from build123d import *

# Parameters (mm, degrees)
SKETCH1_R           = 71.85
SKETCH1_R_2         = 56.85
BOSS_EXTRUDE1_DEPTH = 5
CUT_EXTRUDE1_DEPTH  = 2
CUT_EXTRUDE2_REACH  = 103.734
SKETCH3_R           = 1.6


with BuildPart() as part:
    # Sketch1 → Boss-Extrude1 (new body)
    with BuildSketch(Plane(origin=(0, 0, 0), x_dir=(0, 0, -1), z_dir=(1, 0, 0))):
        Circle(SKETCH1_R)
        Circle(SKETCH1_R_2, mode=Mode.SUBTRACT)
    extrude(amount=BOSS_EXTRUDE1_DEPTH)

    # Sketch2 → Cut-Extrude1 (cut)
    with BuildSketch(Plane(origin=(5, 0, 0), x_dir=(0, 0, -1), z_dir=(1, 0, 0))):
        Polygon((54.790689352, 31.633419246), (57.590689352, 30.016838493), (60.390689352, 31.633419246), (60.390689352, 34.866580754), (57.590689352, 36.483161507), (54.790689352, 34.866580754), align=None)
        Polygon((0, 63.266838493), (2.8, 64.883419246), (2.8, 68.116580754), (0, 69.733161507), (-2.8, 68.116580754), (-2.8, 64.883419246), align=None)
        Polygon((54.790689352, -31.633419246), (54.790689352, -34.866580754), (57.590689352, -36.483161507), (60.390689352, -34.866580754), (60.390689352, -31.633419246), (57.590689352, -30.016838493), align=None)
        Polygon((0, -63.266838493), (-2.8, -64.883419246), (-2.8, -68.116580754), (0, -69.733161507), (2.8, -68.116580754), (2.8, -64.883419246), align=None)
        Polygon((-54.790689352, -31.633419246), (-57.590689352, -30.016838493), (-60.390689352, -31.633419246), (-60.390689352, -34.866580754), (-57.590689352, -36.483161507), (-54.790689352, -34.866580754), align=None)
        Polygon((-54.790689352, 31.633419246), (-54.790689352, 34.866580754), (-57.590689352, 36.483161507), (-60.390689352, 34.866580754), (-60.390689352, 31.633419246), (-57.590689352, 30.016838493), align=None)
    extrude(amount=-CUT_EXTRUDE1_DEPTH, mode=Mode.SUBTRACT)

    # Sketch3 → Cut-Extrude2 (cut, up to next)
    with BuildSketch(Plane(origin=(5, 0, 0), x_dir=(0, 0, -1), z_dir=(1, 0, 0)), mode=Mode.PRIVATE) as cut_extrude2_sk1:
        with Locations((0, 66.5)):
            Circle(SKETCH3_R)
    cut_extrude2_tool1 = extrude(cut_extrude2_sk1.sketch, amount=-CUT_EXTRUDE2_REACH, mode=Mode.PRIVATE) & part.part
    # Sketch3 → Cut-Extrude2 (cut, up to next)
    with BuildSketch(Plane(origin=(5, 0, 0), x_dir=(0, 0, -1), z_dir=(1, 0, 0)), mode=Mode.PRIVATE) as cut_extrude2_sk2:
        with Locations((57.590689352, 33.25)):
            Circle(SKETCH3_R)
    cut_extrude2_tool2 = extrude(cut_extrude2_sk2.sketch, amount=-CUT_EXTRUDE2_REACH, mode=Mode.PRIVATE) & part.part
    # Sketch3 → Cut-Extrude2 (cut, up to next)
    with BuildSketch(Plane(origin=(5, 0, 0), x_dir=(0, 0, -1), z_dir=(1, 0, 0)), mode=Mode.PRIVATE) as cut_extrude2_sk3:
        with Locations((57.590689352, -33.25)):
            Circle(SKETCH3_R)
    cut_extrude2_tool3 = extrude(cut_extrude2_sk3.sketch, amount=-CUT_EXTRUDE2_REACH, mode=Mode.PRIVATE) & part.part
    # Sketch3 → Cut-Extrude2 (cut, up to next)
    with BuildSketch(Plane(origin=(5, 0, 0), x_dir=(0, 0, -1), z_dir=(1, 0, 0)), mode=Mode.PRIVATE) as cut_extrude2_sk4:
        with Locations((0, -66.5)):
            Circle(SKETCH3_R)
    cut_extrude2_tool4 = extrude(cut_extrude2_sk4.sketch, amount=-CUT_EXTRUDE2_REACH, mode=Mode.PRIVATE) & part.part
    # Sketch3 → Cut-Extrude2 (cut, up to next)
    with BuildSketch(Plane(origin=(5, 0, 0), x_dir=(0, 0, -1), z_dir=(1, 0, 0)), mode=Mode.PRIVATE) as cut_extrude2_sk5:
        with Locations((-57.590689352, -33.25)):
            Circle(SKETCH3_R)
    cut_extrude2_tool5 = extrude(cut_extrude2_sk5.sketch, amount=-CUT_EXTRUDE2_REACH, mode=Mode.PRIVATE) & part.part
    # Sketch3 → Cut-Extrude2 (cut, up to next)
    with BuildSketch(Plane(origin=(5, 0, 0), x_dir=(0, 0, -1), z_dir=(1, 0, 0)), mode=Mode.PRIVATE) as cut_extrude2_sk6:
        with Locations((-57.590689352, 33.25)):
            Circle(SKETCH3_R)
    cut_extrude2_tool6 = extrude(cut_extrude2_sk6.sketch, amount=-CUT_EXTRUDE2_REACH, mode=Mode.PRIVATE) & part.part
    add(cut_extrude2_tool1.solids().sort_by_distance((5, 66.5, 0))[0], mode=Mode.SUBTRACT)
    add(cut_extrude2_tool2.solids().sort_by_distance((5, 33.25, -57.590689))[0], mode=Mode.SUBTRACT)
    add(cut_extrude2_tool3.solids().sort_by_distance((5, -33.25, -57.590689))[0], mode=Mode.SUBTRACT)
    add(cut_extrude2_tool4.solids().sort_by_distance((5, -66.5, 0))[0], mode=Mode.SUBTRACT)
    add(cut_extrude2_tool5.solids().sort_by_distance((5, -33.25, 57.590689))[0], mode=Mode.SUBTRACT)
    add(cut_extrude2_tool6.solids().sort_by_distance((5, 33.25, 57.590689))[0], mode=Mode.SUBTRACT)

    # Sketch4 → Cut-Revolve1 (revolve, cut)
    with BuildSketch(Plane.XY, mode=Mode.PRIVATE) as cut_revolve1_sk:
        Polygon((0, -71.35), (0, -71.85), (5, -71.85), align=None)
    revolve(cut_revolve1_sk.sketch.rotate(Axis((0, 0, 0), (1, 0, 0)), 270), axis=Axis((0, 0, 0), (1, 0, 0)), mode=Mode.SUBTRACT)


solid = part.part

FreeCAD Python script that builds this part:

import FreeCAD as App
import Part
import Sketcher

V = App.Vector
Q = App.Units.Quantity

doc = App.newDocument("Part")
params = doc.addObject("Spreadsheet::Sheet", "Params")
for row, (alias, value) in enumerate([
    ("sketch1_diameter", "143.7 mm"),
    ("sketch1_diameter2", "113.7 mm"),
    ("pad1_length", "5 mm"),
    ("pocket1_length", "2 mm"),
    ("sketch3_diameter", "3.2 mm"),
    ("pocket2_length", "5 mm"),
    ("sketch4_diameter", "3.2 mm"),
    ("pocket3_length", "5 mm"),
    ("sketch5_diameter", "3.2 mm"),
    ("pocket4_length", "5 mm"),
    ("sketch6_diameter", "3.2 mm"),
    ("pocket5_length", "5 mm"),
    ("sketch7_diameter", "3.2 mm"),
    ("pocket6_length", "5 mm"),
    ("sketch8_diameter", "3.2 mm"),
    ("pocket7_length", "5 mm"),
    ("sketch9_width", "5 mm"),
    ("sketch9_height", "0.5 mm"),
    ("groove_angle", "360 deg"),
], start=1):
    params.set(f"A{row}", alias)
    params.set(f"B{row}", "=" + value)
    params.setAlias(f"B{row}", alias)

body = doc.addObject("PartDesign::Body", "Body")

# Sketch on YZ plane
sketch1 = body.newObject("Sketcher::SketchObject", "Sketch")
sketch1.AttachmentSupport = (doc.getObject("YZ_Plane"), [""])
sketch1.MapMode = "FlatFace"
sketch1.addGeometry([
    Part.Circle(V(0, 0, 0), V(0, 0, 1), 72),
    Part.Circle(V(0, 0, 0), V(0, 0, 1), 57),
], False)
sketch1.addConstraint([
    Sketcher.Constraint("Coincident", 0, 3, -1, 1),
    Sketcher.Constraint("Coincident", 1, 3, -1, 1),
    Sketcher.Constraint("Diameter", 0, 143.7),
    Sketcher.Constraint("Diameter", 1, 113.7),
])
sketch1.setExpression("Constraints[2]", "Params.sketch1_diameter")
sketch1.setExpression("Constraints[3]", "Params.sketch1_diameter2")
pad1 = body.newObject("PartDesign::Pad", "Pad")
pad1.Profile = sketch1
pad1.setExpression("Length", "Params.pad1_length")

# Sketch on YZ plane
sketch2 = body.newObject("Sketcher::SketchObject", "Sketch001")
sketch2.AttachmentSupport = (doc.getObject("YZ_Plane"), [""])
sketch2.MapMode = "FlatFace"
sketch2.AttachmentOffset = App.Placement(V(0, 0, 5), App.Rotation())
sketch2.addGeometry([
    Part.LineSegment(V(31.6, -54.8, 0), V(30, -57.6, 0)),  # 0
    Part.LineSegment(V(30, -57.6, 0), V(31.6, -60.4, 0)),  # 1
    Part.LineSegment(V(31.6, -60.4, 0), V(34.9, -60.4, 0)),  # 2
    Part.LineSegment(V(34.9, -60.4, 0), V(36.5, -57.6, 0)),  # 3
    Part.LineSegment(V(36.5, -57.6, 0), V(34.9, -54.8, 0)),  # 4
    Part.LineSegment(V(34.9, -54.8, 0), V(31.6, -54.8, 0)),  # 5
    Part.LineSegment(V(63.3, 0, 0), V(64.9, -2.8, 0)),  # 6
    Part.LineSegment(V(64.9, -2.8, 0), V(68.1, -2.8, 0)),  # 7
    Part.LineSegment(V(68.1, -2.8, 0), V(69.7, 0, 0)),  # 8
    Part.LineSegment(V(69.7, 0, 0), V(68.1, 2.8, 0)),  # 9
    Part.LineSegment(V(68.1, 2.8, 0), V(64.9, 2.8, 0)),  # 10
    Part.LineSegment(V(64.9, 2.8, 0), V(63.3, 0, 0)),  # 11
    Part.LineSegment(V(-31.6, -54.8, 0), V(-34.9, -54.8, 0)),  # 12
    Part.LineSegment(V(-34.9, -54.8, 0), V(-36.5, -57.6, 0)),  # 13
    Part.LineSegment(V(-36.5, -57.6, 0), V(-34.9, -60.4, 0)),  # 14
    Part.LineSegment(V(-34.9, -60.4, 0), V(-31.6, -60.4, 0)),  # 15
    Part.LineSegment(V(-31.6, -60.4, 0), V(-30, -57.6, 0)),  # 16
    Part.LineSegment(V(-30, -57.6, 0), V(-31.6, -54.8, 0)),  # 17
    Part.LineSegment(V(-63.3, 0, 0), V(-64.9, 2.8, 0)),  # 18
    Part.LineSegment(V(-64.9, 2.8, 0), V(-68.1, 2.8, 0)),  # 19
    Part.LineSegment(V(-68.1, 2.8, 0), V(-69.7, 0, 0)),  # 20
    Part.LineSegment(V(-69.7, 0, 0), V(-68.1, -2.8, 0)),  # 21
    Part.LineSegment(V(-68.1, -2.8, 0), V(-64.9, -2.8, 0)),  # 22
    Part.LineSegment(V(-64.9, -2.8, 0), V(-63.3, 0, 0)),  # 23
    Part.LineSegment(V(-31.6, 54.8, 0), V(-30, 57.6, 0)),  # 24
    Part.LineSegment(V(-30, 57.6, 0), V(-31.6, 60.4, 0)),  # 25
    Part.LineSegment(V(-31.6, 60.4, 0), V(-34.9, 60.4, 0)),  # 26
    Part.LineSegment(V(-34.9, 60.4, 0), V(-36.5, 57.6, 0)),  # 27
    Part.LineSegment(V(-36.5, 57.6, 0), V(-34.9, 54.8, 0)),  # 28
    Part.LineSegment(V(-34.9, 54.8, 0), V(-31.6, 54.8, 0)),  # 29
    Part.LineSegment(V(31.6, 54.8, 0), V(34.9, 54.8, 0)),  # 30
    Part.LineSegment(V(34.9, 54.8, 0), V(36.5, 57.6, 0)),  # 31
    Part.LineSegment(V(36.5, 57.6, 0), V(34.9, 60.4, 0)),  # 32
    Part.LineSegment(V(34.9, 60.4, 0), V(31.6, 60.4, 0)),  # 33
    Part.LineSegment(V(31.6, 60.4, 0), V(30, 57.6, 0)),  # 34
    Part.LineSegment(V(30, 57.6, 0), V(31.6, 54.8, 0)),  # 35
], False)
sketch2.addConstraint([
    Sketcher.Constraint("Coincident", 0, 2, 1, 1),
    Sketcher.Constraint("Coincident", 1, 2, 2, 1),
    Sketcher.Constraint("Coincident", 2, 2, 3, 1),
    Sketcher.Constraint("Coincident", 3, 2, 4, 1),
    Sketcher.Constraint("Coincident", 4, 2, 5, 1),
    Sketcher.Constraint("Coincident", 5, 2, 0, 1),
    Sketcher.Constraint("Coincident", 6, 2, 7, 1),
    Sketcher.Constraint("Coincident", 7, 2, 8, 1),
    Sketcher.Constraint("Coincident", 8, 2, 9, 1),
    Sketcher.Constraint("Coincident", 9, 2, 10, 1),
    Sketcher.Constraint("Coincident", 10, 2, 11, 1),
    Sketcher.Constraint("Coincident", 11, 2, 6, 1),
    Sketcher.Constraint("Coincident", 12, 2, 13, 1),
    Sketcher.Constraint("Coincident", 13, 2, 14, 1),
    Sketcher.Constraint("Coincident", 14, 2, 15, 1),
    Sketcher.Constraint("Coincident", 15, 2, 16, 1),
    Sketcher.Constraint("Coincident", 16, 2, 17, 1),
    Sketcher.Constraint("Coincident", 17, 2, 12, 1),
    Sketcher.Constraint("Coincident", 18, 2, 19, 1),
    Sketcher.Constraint("Coincident", 19, 2, 20, 1),
    Sketcher.Constraint("Coincident", 20, 2, 21, 1),
    Sketcher.Constraint("Coincident", 21, 2, 22, 1),
    Sketcher.Constraint("Coincident", 22, 2, 23, 1),
    Sketcher.Constraint("Coincident", 23, 2, 18, 1),
    Sketcher.Constraint("Coincident", 24, 2, 25, 1),
    Sketcher.Constraint("Coincident", 25, 2, 26, 1),
    Sketcher.Constraint("Coincident", 26, 2, 27, 1),
    Sketcher.Constraint("Coincident", 27, 2, 28, 1),
    Sketcher.Constraint("Coincident", 28, 2, 29, 1),
    Sketcher.Constraint("Coincident", 29, 2, 24, 1),
    Sketcher.Constraint("Coincident", 30, 2, 31, 1),
    Sketcher.Constraint("Coincident", 31, 2, 32, 1),
    Sketcher.Constraint("Coincident", 32, 2, 33, 1),
    Sketcher.Constraint("Coincident", 33, 2, 34, 1),
    Sketcher.Constraint("Coincident", 34, 2, 35, 1),
    Sketcher.Constraint("Coincident", 35, 2, 30, 1),
    Sketcher.Constraint("Horizontal", 2),
    Sketcher.Constraint("Horizontal", 5),
    Sketcher.Constraint("Horizontal", 7),
    Sketcher.Constraint("Horizontal", 10),
    Sketcher.Constraint("Horizontal", 12),
    Sketcher.Constraint("Horizontal", 15),
    Sketcher.Constraint("Horizontal", 19),
    Sketcher.Constraint("Horizontal", 22),
    Sketcher.Constraint("Horizontal", 26),
    Sketcher.Constraint("Horizontal", 29),
    Sketcher.Constraint("Horizontal", 30),
    Sketcher.Constraint("Horizontal", 33),
    Sketcher.Constraint("Symmetric", 6, 2, 18, 2, -1, 1),
    Sketcher.Constraint("Symmetric", 8, 2, 20, 2, -1, 1),
    Sketcher.Constraint("Symmetric", 9, 2, 21, 2, -1, 1),
    Sketcher.Constraint("Symmetric", 11, 2, 23, 2, -1, 1),
    Sketcher.Constraint("Symmetric", 0, 2, 24, 2, -1, 1),
    Sketcher.Constraint("Symmetric", 1, 2, 25, 2, -1, 1),
    Sketcher.Constraint("Symmetric", 3, 2, 27, 2, -1, 1),
    Sketcher.Constraint("Symmetric", 4, 2, 28, 2, -1, 1),
    Sketcher.Constraint("Symmetric", 12, 2, 30, 2, -1, 1),
    Sketcher.Constraint("Symmetric", 13, 2, 31, 2, -1, 1),
    Sketcher.Constraint("Symmetric", 14, 2, 32, 2, -1, 1),
    Sketcher.Constraint("Symmetric", 16, 2, 34, 2, -1, 1),
    Sketcher.Constraint("Symmetric", 4, 2, 12, 2, -2),
    Sketcher.Constraint("Symmetric", 3, 2, 13, 2, -2),
    Sketcher.Constraint("Symmetric", 2, 2, 14, 2, -2),
    Sketcher.Constraint("Symmetric", 0, 2, 16, 2, -2),
    Sketcher.Constraint("Symmetric", 10, 2, 18, 2, -2),
    Sketcher.Constraint("PointOnObject", 8, 2, -1),
    Sketcher.Constraint("PointOnObject", 11, 2, -1),
    Sketcher.Constraint("Parallel", 0, 3),
    Sketcher.Constraint("Parallel", 1, 4),
    Sketcher.Constraint("Parallel", 4, 6),
    Sketcher.Constraint("Parallel", 3, 8),
    Sketcher.Constraint("Parallel", 6, 9),
    Sketcher.Constraint("Parallel", 8, 11),
    Sketcher.Constraint("Parallel", 13, 16),
    Sketcher.Constraint("Parallel", 14, 17),
    Sketcher.Constraint("Parallel", 16, 20),
    Sketcher.Constraint("Parallel", 20, 23),
    Sketcher.Constraint("Parallel", 23, 24),
    Sketcher.Constraint("Parallel", 24, 27),
    Sketcher.Constraint("Parallel", 31, 34),
    Sketcher.Constraint("Parallel", 32, 35),
    Sketcher.Constraint("Horizontal", 0, 2, 3, 2),
    Sketcher.Constraint("Vertical", 2, 2, 4, 2),
    Sketcher.Constraint("Equal", 5, 7),
    Sketcher.Constraint("Equal", 4, 6),
    Sketcher.Constraint("Angle", 0, Q("-120 deg")),
    Sketcher.Constraint("DistanceY", 6, 2, -1, 1, 2.8),
    Sketcher.Constraint("DistanceX", 12, 2, 5, 2, 66.5),
    Sketcher.Constraint("DistanceX", 5, 2, 6, 2, 33.25),
    Sketcher.Constraint("DistanceX", 2, 1, 2, 2, 3.233162),
    Sketcher.Constraint("DistanceY", 0, 2, -1, 1, 57.590689),
])
pocket1 = body.newObject("PartDesign::Pocket", "Pocket")
pocket1.Profile = sketch2
pocket1.setExpression("Length", "Params.pocket1_length")

# Sketch on YZ plane
sketch3 = body.newObject("Sketcher::SketchObject", "Sketch002")
sketch3.AttachmentSupport = (doc.getObject("YZ_Plane"), [""])
sketch3.MapMode = "FlatFace"
sketch3.AttachmentOffset = App.Placement(V(0, 0, 5), App.Rotation())
sketch3.addGeometry(Part.Circle(V(66.5, 0, 0), V(0, 0, 1), 1.6), False)
sketch3.addConstraint([
    Sketcher.Constraint("PointOnObject", 0, 3, -1),
    Sketcher.Constraint("Diameter", 0, 3.2),
    Sketcher.Constraint("DistanceX", -1, 1, 0, 3, 66.5),
])
sketch3.setExpression("Constraints[1]", "Params.sketch3_diameter")
pocket2 = body.newObject("PartDesign::Pocket", "Pocket001")
pocket2.Profile = sketch3
pocket2.setExpression("Length", "Params.pocket2_length")

# Sketch on YZ plane
sketch4 = body.newObject("Sketcher::SketchObject", "Sketch003")
sketch4.AttachmentSupport = (doc.getObject("YZ_Plane"), [""])
sketch4.MapMode = "FlatFace"
sketch4.AttachmentOffset = App.Placement(V(0, 0, 5), App.Rotation())
sketch4.addGeometry(Part.Circle(V(33.2, -57.6, 0), V(0, 0, 1), 1.6), False)
sketch4.addConstraint([
    Sketcher.Constraint("Diameter", 0, 3.2),
    Sketcher.Constraint("DistanceX", -1, 1, 0, 3, 33.25),
    Sketcher.Constraint("DistanceY", 0, 3, -1, 1, 57.590689),
])
sketch4.setExpression("Constraints[0]", "Params.sketch4_diameter")
pocket3 = body.newObject("PartDesign::Pocket", "Pocket002")
pocket3.Profile = sketch4
pocket3.setExpression("Length", "Params.pocket3_length")

# Sketch on YZ plane
sketch5 = body.newObject("Sketcher::SketchObject", "Sketch004")
sketch5.AttachmentSupport = (doc.getObject("YZ_Plane"), [""])
sketch5.MapMode = "FlatFace"
sketch5.AttachmentOffset = App.Placement(V(0, 0, 5), App.Rotation())
sketch5.addGeometry(Part.Circle(V(-33.2, -57.6, 0), V(0, 0, 1), 1.6), False)
sketch5.addConstraint([
    Sketcher.Constraint("Diameter", 0, 3.2),
    Sketcher.Constraint("DistanceX", 0, 3, -1, 1, 33.25),
    Sketcher.Constraint("DistanceY", 0, 3, -1, 1, 57.590689),
])
sketch5.setExpression("Constraints[0]", "Params.sketch5_diameter")
pocket4 = body.newObject("PartDesign::Pocket", "Pocket003")
pocket4.Profile = sketch5
pocket4.setExpression("Length", "Params.pocket4_length")

# Sketch on YZ plane
sketch6 = body.newObject("Sketcher::SketchObject", "Sketch005")
sketch6.AttachmentSupport = (doc.getObject("YZ_Plane"), [""])
sketch6.MapMode = "FlatFace"
sketch6.AttachmentOffset = App.Placement(V(0, 0, 5), App.Rotation())
sketch6.addGeometry(Part.Circle(V(-66.5, 0, 0), V(0, 0, 1), 1.6), False)
sketch6.addConstraint([
    Sketcher.Constraint("PointOnObject", 0, 3, -1),
    Sketcher.Constraint("Diameter", 0, 3.2),
    Sketcher.Constraint("DistanceX", 0, 3, -1, 1, 66.5),
])
sketch6.setExpression("Constraints[1]", "Params.sketch6_diameter")
pocket5 = body.newObject("PartDesign::Pocket", "Pocket004")
pocket5.Profile = sketch6
pocket5.setExpression("Length", "Params.pocket5_length")

# Sketch on YZ plane
sketch7 = body.newObject("Sketcher::SketchObject", "Sketch006")
sketch7.AttachmentSupport = (doc.getObject("YZ_Plane"), [""])
sketch7.MapMode = "FlatFace"
sketch7.AttachmentOffset = App.Placement(V(0, 0, 5), App.Rotation())
sketch7.addGeometry(Part.Circle(V(-33.2, 57.6, 0), V(0, 0, 1), 1.6), False)
sketch7.addConstraint([
    Sketcher.Constraint("Diameter", 0, 3.2),
    Sketcher.Constraint("DistanceX", 0, 3, -1, 1, 33.25),
    Sketcher.Constraint("DistanceY", -1, 1, 0, 3, 57.590689),
])
sketch7.setExpression("Constraints[0]", "Params.sketch7_diameter")
pocket6 = body.newObject("PartDesign::Pocket", "Pocket005")
pocket6.Profile = sketch7
pocket6.setExpression("Length", "Params.pocket6_length")

# Sketch on YZ plane
sketch8 = body.newObject("Sketcher::SketchObject", "Sketch007")
sketch8.AttachmentSupport = (doc.getObject("YZ_Plane"), [""])
sketch8.MapMode = "FlatFace"
sketch8.AttachmentOffset = App.Placement(V(0, 0, 5), App.Rotation())
sketch8.addGeometry(Part.Circle(V(33.2, 57.6, 0), V(0, 0, 1), 1.6), False)
sketch8.addConstraint([
    Sketcher.Constraint("Diameter", 0, 3.2),
    Sketcher.Constraint("DistanceX", -1, 1, 0, 3, 33.25),
    Sketcher.Constraint("DistanceY", -1, 1, 0, 3, 57.590689),
])
sketch8.setExpression("Constraints[0]", "Params.sketch8_diameter")
pocket7 = body.newObject("PartDesign::Pocket", "Pocket006")
pocket7.Profile = sketch8
pocket7.setExpression("Length", "Params.pocket7_length")

# Sketch on XY plane
sketch9 = body.newObject("Sketcher::SketchObject", "Sketch008")
sketch9.AttachmentSupport = (doc.getObject("XY_Plane"), [""])
sketch9.MapMode = "FlatFace"
sketch9.addGeometry([
    Part.LineSegment(V(0, -71.3, 0), V(0, -71.8, 0)),
    Part.LineSegment(V(0, -71.8, 0), V(5, -71.8, 0)),
    Part.LineSegment(V(5, -71.8, 0), V(0, -71.3, 0)),
], False)
sketch9.addConstraint([
    Sketcher.Constraint("Coincident", 0, 2, 1, 1),
    Sketcher.Constraint("Coincident", 1, 2, 2, 1),
    Sketcher.Constraint("Coincident", 2, 2, 0, 1),
    Sketcher.Constraint("Vertical", 0),
    Sketcher.Constraint("Horizontal", 1),
    Sketcher.Constraint("PointOnObject", 0, 2, -2),
    Sketcher.Constraint("DistanceX", 1, 1, 1, 2, 5.0),
    Sketcher.Constraint("DistanceY", 0, 2, 0, 1, 0.5),
    Sketcher.Constraint("DistanceY", 0, 2, -1, 1, 71.85),
])
sketch9.setExpression("Constraints[6]", "Params.sketch9_width")
sketch9.setExpression("Constraints[7]", "Params.sketch9_height")
groove = body.newObject("PartDesign::Groove", "Groove")
groove.Profile = sketch9
groove.ReferenceAxis = (sketch9, ["H_Axis"])
groove.setExpression("Angle", "Params.groove_angle")

doc.recompute()
